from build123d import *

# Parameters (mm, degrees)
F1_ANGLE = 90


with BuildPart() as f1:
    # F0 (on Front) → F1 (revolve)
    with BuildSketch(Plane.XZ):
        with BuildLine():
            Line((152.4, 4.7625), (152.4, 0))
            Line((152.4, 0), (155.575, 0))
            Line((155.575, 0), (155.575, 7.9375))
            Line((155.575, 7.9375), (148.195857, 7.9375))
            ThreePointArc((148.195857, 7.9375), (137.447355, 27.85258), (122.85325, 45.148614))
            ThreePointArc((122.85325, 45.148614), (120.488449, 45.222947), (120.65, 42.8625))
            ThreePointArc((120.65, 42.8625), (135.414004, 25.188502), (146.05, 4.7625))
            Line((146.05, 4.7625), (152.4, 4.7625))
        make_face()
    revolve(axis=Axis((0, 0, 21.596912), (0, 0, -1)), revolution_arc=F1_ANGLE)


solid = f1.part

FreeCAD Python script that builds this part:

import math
import FreeCAD as App
import Part
import Sketcher

V = App.Vector
Q = App.Units.Quantity

doc = App.newDocument("Part")
body = doc.addObject("PartDesign::Body", "Body")

# Sketch on XZ plane
sketch1 = doc.addObject("Sketcher::SketchObject", "Sketch")
body.addObject(sketch1)
sketch1.AttachmentSupport = (doc.XZ_Plane, [""])
sketch1.MapMode = "FlatFace"
sketch1.addGeometry([
    Part.LineSegment(V(152.4, 4.7625, 0), V(152.4, 0, 0)),  # 0
    Part.LineSegment(V(152.4, 0, 0), V(155.575, 0, 0)),  # 1
    Part.LineSegment(V(155.575, 0, 0), V(155.575, 7.9375, 0)),  # 2
    Part.LineSegment(V(155.575, 7.9375, 0), V(148.195857, 7.9375, 0)),  # 3
    Part.ArcOfCircle(Part.Circle(V(46.469711, -34.10769, 0), V(0, 0, 1), 110.072734), math.radians(22.456161), math.radians(46.057433)),  # 4
    Part.ArcOfCircle(Part.Circle(V(121.637217, 44.115818, 0), V(0, 0, 1), 1.595432), math.radians(40.34178), math.radians(231.773094)),  # 5
    Part.ArcOfCircle(Part.Circle(V(46.469732, -34.107679, 0), V(0, 0, 1), 106.897711), math.radians(21.322699), math.radians(46.057436)),  # 6
    Part.LineSegment(V(146.05, 4.7625, 0), V(152.4, 4.7625, 0)),  # 7
], False)
sketch1.addConstraint([
    Sketcher.Constraint("Coincident", 0, 2, 1, 1),
    Sketcher.Constraint("Coincident", 1, 2, 2, 1),
    Sketcher.Constraint("Coincident", 2, 2, 3, 1),
    Sketcher.Constraint("Coincident", 3, 2, 4, 1),
    Sketcher.Constraint("Coincident", 4, 2, 5, 1),
    Sketcher.Constraint("Coincident", 5, 2, 6, 2),
    Sketcher.Constraint("Coincident", 6, 1, 7, 1),
    Sketcher.Constraint("Coincident", 7, 2, 0, 1),
    Sketcher.Constraint("Vertical", 0),
    Sketcher.Constraint("Horizontal", 1),
    Sketcher.Constraint("Vertical", 2),
    Sketcher.Constraint("Horizontal", 3),
    Sketcher.Constraint("Horizontal", 7),
    Sketcher.Constraint("PointOnObject", 0, 2, -1),
    Sketcher.Constraint("DistanceX", -1, 1, 0, 2, Q("6 in")),
    Sketcher.Constraint("DistanceX", 5, 2, 6, 1, Q("1 in")),
    Sketcher.Constraint("DistanceX", 7, 1, 7, 2, Q("0.25 in")),
    Sketcher.Constraint("DistanceY", 6, 1, 5, 2, Q("1.5 in")),
    Sketcher.Constraint("DistanceX", 1, 1, 1, 2, Q("0.125 in")),
    Sketcher.Constraint("DistanceY", 0, 2, 0, 1, Q("0.1875 in")),
    Sketcher.Constraint("DistanceY", 2, 1, 2, 2, Q("0.3125 in")),
    Sketcher.Constraint("Radius", 6, Q("106.897711 mm")),
    Sketcher.Constraint("Radius", 4, Q("110.072734 mm")),
    Sketcher.Constraint("Radius", 5, Q("1.595432 mm")),
    Sketcher.Constraint("DistanceX", 3, 2, 3, 1, Q("7.379143 mm")),
    Sketcher.Constraint("DistanceX", -1, 1, 4, 3, Q("46.469711 mm")),
    Sketcher.Constraint("DistanceX", -1, 1, 4, 2, Q("122.85325 mm")),
])
revolution = doc.addObject("PartDesign::Revolution", "Revolution")
body.addObject(revolution)
revolution.Profile = sketch1
revolution.ReferenceAxis = (sketch1, ["V_Axis"])
revolution.Angle = 90
revolution.Reversed = True

doc.recompute()
